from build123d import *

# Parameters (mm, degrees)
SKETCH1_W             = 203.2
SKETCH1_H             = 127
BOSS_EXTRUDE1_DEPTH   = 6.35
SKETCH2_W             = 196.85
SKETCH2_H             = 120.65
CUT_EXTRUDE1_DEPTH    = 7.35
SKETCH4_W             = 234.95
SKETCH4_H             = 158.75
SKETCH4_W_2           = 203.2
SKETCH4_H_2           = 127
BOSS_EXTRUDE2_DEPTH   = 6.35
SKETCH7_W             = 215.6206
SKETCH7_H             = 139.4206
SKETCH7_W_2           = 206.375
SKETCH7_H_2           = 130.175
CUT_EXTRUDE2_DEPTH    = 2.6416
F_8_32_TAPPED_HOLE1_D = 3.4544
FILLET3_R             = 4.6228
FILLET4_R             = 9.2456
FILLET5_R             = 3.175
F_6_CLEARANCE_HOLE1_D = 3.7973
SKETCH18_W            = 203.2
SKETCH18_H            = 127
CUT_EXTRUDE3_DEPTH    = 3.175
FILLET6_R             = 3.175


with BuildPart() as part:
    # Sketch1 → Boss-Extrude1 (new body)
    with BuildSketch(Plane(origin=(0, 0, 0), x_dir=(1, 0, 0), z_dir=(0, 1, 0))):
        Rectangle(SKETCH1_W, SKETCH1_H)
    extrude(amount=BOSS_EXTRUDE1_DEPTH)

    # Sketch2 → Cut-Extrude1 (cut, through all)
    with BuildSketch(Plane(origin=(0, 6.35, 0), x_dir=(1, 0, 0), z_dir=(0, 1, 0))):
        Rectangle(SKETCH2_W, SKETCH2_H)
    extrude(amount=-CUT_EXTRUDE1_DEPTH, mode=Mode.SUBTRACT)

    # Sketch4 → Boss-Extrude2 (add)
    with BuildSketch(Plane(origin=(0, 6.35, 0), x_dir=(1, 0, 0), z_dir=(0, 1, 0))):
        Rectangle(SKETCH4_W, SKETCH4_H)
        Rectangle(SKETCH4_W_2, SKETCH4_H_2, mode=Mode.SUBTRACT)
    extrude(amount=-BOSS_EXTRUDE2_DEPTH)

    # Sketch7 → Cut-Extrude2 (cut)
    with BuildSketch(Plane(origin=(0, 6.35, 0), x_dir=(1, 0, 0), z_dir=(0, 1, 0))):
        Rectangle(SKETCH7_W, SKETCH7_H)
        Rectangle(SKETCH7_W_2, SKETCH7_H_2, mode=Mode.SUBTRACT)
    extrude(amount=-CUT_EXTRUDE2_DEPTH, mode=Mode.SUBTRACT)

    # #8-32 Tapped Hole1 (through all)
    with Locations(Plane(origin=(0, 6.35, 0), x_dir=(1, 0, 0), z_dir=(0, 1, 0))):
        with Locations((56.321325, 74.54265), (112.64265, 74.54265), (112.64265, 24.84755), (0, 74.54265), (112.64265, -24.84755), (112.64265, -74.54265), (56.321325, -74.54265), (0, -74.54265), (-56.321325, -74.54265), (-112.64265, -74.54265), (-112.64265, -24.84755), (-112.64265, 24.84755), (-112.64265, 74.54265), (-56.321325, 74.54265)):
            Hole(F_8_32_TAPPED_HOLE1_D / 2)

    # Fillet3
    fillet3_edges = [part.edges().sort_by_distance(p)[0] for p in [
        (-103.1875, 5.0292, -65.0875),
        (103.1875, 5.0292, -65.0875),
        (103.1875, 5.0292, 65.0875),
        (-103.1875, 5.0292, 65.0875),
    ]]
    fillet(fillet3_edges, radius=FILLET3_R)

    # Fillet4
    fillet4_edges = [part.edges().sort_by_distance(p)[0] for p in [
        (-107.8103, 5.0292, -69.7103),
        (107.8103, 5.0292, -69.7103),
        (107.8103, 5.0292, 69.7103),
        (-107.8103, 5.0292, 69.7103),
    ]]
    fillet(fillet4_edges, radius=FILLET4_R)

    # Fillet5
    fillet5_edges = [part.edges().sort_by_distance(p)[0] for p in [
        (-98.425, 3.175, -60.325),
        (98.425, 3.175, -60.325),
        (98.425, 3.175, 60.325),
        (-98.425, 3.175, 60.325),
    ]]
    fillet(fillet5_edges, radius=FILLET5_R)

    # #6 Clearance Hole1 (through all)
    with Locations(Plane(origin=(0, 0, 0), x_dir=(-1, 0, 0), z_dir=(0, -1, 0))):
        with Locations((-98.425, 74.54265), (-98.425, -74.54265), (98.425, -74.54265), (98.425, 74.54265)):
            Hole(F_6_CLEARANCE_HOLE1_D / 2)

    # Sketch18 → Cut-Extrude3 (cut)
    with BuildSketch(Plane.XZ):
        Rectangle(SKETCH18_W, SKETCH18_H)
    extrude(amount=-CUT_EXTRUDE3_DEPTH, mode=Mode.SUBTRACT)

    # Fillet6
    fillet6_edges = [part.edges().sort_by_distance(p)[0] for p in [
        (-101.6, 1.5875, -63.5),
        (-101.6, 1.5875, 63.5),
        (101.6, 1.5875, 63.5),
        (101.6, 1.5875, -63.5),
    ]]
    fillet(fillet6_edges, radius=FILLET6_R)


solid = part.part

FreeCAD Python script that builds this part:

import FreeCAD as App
import Part
import Sketcher

V = App.Vector
Q = App.Units.Quantity


def edges_at(feature, points):
    """Names of the edges that pass closest to the given points."""
    edges = feature.Shape.Edges
    near = lambda p: min(range(len(edges)), key=lambda i: edges[i].distToShape(Part.Vertex(*p))[0])
    return sorted({f"Edge{near(p) + 1}" for p in points})

doc = App.newDocument("Part")
params = doc.addObject("Spreadsheet::Sheet", "Params")
for row, (alias, value) in enumerate([
    ("sketch1_width", "8 in"),
    ("sketch1_height", "5 in"),
    ("pad1_length", "0.25 in"),
    ("sketch2_width", "7.75 in"),
    ("sketch2_height", "4.75 in"),
    ("sketch3_width", "8 in"),
    ("sketch3_height", "5 in"),
    ("sketch3_width2", "9.25 in"),
    ("sketch3_height2", "6.25 in"),
    ("pad2_length", "0.25 in"),
    ("sketch4_width", "8.489 in"),
    ("sketch4_width2", "8.125 in"),
    ("sketch4_height", "5.489 in"),
    ("sketch4_height2", "5.125 in"),
    ("pocket2_length", "0.104 in"),
    ("sketch5_diameter", "0.136 in"),
    ("hole_diameter", "0.136 in"),
    ("fillet_radius", "0.182 in"),
    ("fillet2_radius", "0.364 in"),
    ("fillet3_radius", "0.125 in"),
    ("hole2_diameter", "0.1495 in"),
    ("sketch7_width", "8 in"),
    ("sketch7_height", "5 in"),
    ("pocket3_length", "0.125 in"),
    ("fillet4_radius", "0.125 in"),
], start=1):
    params.set(f"A{row}", alias)
    params.set(f"B{row}", "=" + value)
    params.setAlias(f"B{row}", alias)

body = doc.addObject("PartDesign::Body", "Body")

sketch1 = doc.addObject("Sketcher::SketchObject", "Sketch")
body.addObject(sketch1)
sketch1.AttachmentSupport = (doc.XZ_Plane, [""])
sketch1.MapMode = "FlatFace"
sketch1.addGeometry(Part.LineSegment(V(-102, -64, 0), V(-102, 64, 0)), False)
sketch1.addGeometry(Part.LineSegment(V(-102, 64, 0), V(102, 64, 0)), False)
sketch1.addGeometry(Part.LineSegment(V(102, 64, 0), V(102, -64, 0)), False)
sketch1.addGeometry(Part.LineSegment(V(102, -64, 0), V(-102, -64, 0)), False)
sketch1.addConstraint(Sketcher.Constraint("Coincident", 0, 2, 1, 1))
sketch1.addConstraint(Sketcher.Constraint("Coincident", 1, 2, 2, 1))
sketch1.addConstraint(Sketcher.Constraint("Coincident", 2, 2, 3, 1))
sketch1.addConstraint(Sketcher.Constraint("Coincident", 3, 2, 0, 1))
sketch1.addConstraint(Sketcher.Constraint("Vertical", 0))
sketch1.addConstraint(Sketcher.Constraint("Horizontal", 1))
sketch1.addConstraint(Sketcher.Constraint("Vertical", 2))
sketch1.addConstraint(Sketcher.Constraint("Horizontal", 3))
sketch1.addConstraint(Sketcher.Constraint("Symmetric", 0, 2, 2, 2, -1, 1))
sketch1.addConstraint(Sketcher.Constraint("DistanceX", 1, 1, 1, 2, Q("8 in")))
sketch1.addConstraint(Sketcher.Constraint("DistanceY", 0, 1, 0, 2, Q("5 in")))
sketch1.setExpression("Constraints[9]", "Params.sketch1_width")
sketch1.setExpression("Constraints[10]", "Params.sketch1_height")
pad1 = doc.addObject("PartDesign::Pad", "Pad")
body.addObject(pad1)
pad1.Profile = sketch1
pad1.setExpression("Length", "Params.pad1_length")
pad1.Reversed = True

sketch2 = doc.addObject("Sketcher::SketchObject", "Sketch001")
body.addObject(sketch2)
sketch2.AttachmentSupport = (doc.XZ_Plane, [""])
sketch2.MapMode = "FlatFace"
sketch2.AttachmentOffset = App.Placement(V(0, 0, -0.25 * 25.4), App.Rotation())
sketch2.addGeometry(Part.LineSegment(V(-98, -60, 0), V(-98, 60, 0)), False)
sketch2.addGeometry(Part.LineSegment(V(-98, 60, 0), V(98, 60, 0)), False)
sketch2.addGeometry(Part.LineSegment(V(98, 60, 0), V(98, -60, 0)), False)
sketch2.addGeometry(Part.LineSegment(V(98, -60, 0), V(-98, -60, 0)), False)
sketch2.addConstraint(Sketcher.Constraint("Coincident", 0, 2, 1, 1))
sketch2.addConstraint(Sketcher.Constraint("Coincident", 1, 2, 2, 1))
sketch2.addConstraint(Sketcher.Constraint("Coincident", 2, 2, 3, 1))
sketch2.addConstraint(Sketcher.Constraint("Coincident", 3, 2, 0, 1))
sketch2.addConstraint(Sketcher.Constraint("Vertical", 0))
sketch2.addConstraint(Sketcher.Constraint("Horizontal", 1))
sketch2.addConstraint(Sketcher.Constraint("Vertical", 2))
sketch2.addConstraint(Sketcher.Constraint("Horizontal", 3))
sketch2.addConstraint(Sketcher.Constraint("Symmetric", 0, 2, 2, 2, -1, 1))
sketch2.addConstraint(Sketcher.Constraint("DistanceX", 1, 1, 1, 2, Q("7.75 in")))
sketch2.addConstraint(Sketcher.Constraint("DistanceY", 0, 1, 0, 2, Q("4.75 in")))
sketch2.setExpression("Constraints[9]", "Params.sketch2_width")
sketch2.setExpression("Constraints[10]", "Params.sketch2_height")
pocket1 = doc.addObject("PartDesign::Pocket", "Pocket")
body.addObject(pocket1)
pocket1.Profile = sketch2
pocket1.Type = "ThroughAll"
pocket1.Reversed = True

sketch3 = doc.addObject("Sketcher::SketchObject", "Sketch002")
body.addObject(sketch3)
sketch3.AttachmentSupport = (doc.XZ_Plane, [""])
sketch3.MapMode = "FlatFace"
sketch3.AttachmentOffset = App.Placement(V(0, 0, -0.25 * 25.4), App.Rotation())
sketch3.addGeometry(Part.LineSegment(V(-117, -79, 0), V(-117, 79, 0)), False)
sketch3.addGeometry(Part.LineSegment(V(-117, 79, 0), V(117, 79, 0)), False)
sketch3.addGeometry(Part.LineSegment(V(117, 79, 0), V(117, -79, 0)), False)
sketch3.addGeometry(Part.LineSegment(V(117, -79, 0), V(-117, -79, 0)), False)
sketch3.addGeometry(Part.LineSegment(V(102, 64, 0), V(-102, 64, 0)), False)
sketch3.addGeometry(Part.LineSegment(V(-102, 64, 0), V(-102, -64, 0)), False)
sketch3.addGeometry(Part.LineSegment(V(-102, -64, 0), V(102, -64, 0)), False)
sketch3.addGeometry(Part.LineSegment(V(102, -64, 0), V(102, 64, 0)), False)
sketch3.addConstraint(Sketcher.Constraint("Coincident", 0, 2, 1, 1))
sketch3.addConstraint(Sketcher.Constraint("Coincident", 1, 2, 2, 1))
sketch3.addConstraint(Sketcher.Constraint("Coincident", 2, 2, 3, 1))
sketch3.addConstraint(Sketcher.Constraint("Coincident", 3, 2, 0, 1))
sketch3.addConstraint(Sketcher.Constraint("Coincident", 4, 2, 5, 1))
sketch3.addConstraint(Sketcher.Constraint("Coincident", 5, 2, 6, 1))
sketch3.addConstraint(Sketcher.Constraint("Coincident", 6, 2, 7, 1))
sketch3.addConstraint(Sketcher.Constraint("Coincident", 7, 2, 4, 1))
sketch3.addConstraint(Sketcher.Constraint("Vertical", 0))
sketch3.addConstraint(Sketcher.Constraint("Horizontal", 1))
sketch3.addConstraint(Sketcher.Constraint("Vertical", 2))
sketch3.addConstraint(Sketcher.Constraint("Horizontal", 3))
sketch3.addConstraint(Sketcher.Constraint("Horizontal", 4))
sketch3.addConstraint(Sketcher.Constraint("Vertical", 5))
sketch3.addConstraint(Sketcher.Constraint("Horizontal", 6))
sketch3.addConstraint(Sketcher.Constraint("Vertical", 7))
sketch3.addConstraint(Sketcher.Constraint("Symmetric", 0, 2, 2, 2, -1, 1))
sketch3.addConstraint(Sketcher.Constraint("Symmetric", 4, 2, 6, 2, -1, 1))
sketch3.addConstraint(Sketcher.Constraint("DistanceX", 4, 2, 4, 1, Q("8 in")))
sketch3.addConstraint(Sketcher.Constraint("DistanceY", 5, 2, 5, 1, Q("5 in")))
sketch3.addConstraint(Sketcher.Constraint("DistanceX", 1, 1, 1, 2, Q("9.25 in")))
sketch3.addConstraint(Sketcher.Constraint("DistanceY", 0, 1, 0, 2, Q("6.25 in")))
sketch3.setExpression("Constraints[18]", "Params.sketch3_width")
sketch3.setExpression("Constraints[19]", "Params.sketch3_height")
sketch3.setExpression("Constraints[20]", "Params.sketch3_width2")
sketch3.setExpression("Constraints[21]", "Params.sketch3_height2")
pad2 = doc.addObject("PartDesign::Pad", "Pad001")
body.addObject(pad2)
pad2.Profile = sketch3
pad2.setExpression("Length", "Params.pad2_length")

sketch4 = doc.addObject("Sketcher::SketchObject", "Sketch003")
body.addObject(sketch4)
sketch4.AttachmentSupport = (doc.XZ_Plane, [""])
sketch4.MapMode = "FlatFace"
sketch4.AttachmentOffset = App.Placement(V(0, 0, -0.25 * 25.4), App.Rotation())
sketch4.addGeometry(Part.LineSegment(V(-108, -70, 0), V(-108, 70, 0)), False)
sketch4.addGeometry(Part.LineSegment(V(-108, 70, 0), V(108, 70, 0)), False)
sketch4.addGeometry(Part.LineSegment(V(108, 70, 0), V(108, -70, 0)), False)
sketch4.addGeometry(Part.LineSegment(V(108, -70, 0), V(-108, -70, 0)), False)
sketch4.addGeometry(Part.LineSegment(V(103, 65, 0), V(-103, 65, 0)), False)
sketch4.addGeometry(Part.LineSegment(V(-103, 65, 0), V(-103, -65, 0)), False)
sketch4.addGeometry(Part.LineSegment(V(-103, -65, 0), V(103, -65, 0)), False)
sketch4.addGeometry(Part.LineSegment(V(103, -65, 0), V(103, 65, 0)), False)
sketch4.addConstraint(Sketcher.Constraint("Coincident", 0, 2, 1, 1))
sketch4.addConstraint(Sketcher.Constraint("Coincident", 1, 2, 2, 1))
sketch4.addConstraint(Sketcher.Constraint("Coincident", 2, 2, 3, 1))
sketch4.addConstraint(Sketcher.Constraint("Coincident", 3, 2, 0, 1))
sketch4.addConstraint(Sketcher.Constraint("Coincident", 4, 2, 5, 1))
sketch4.addConstraint(Sketcher.Constraint("Coincident", 5, 2, 6, 1))
sketch4.addConstraint(Sketcher.Constraint("Coincident", 6, 2, 7, 1))
sketch4.addConstraint(Sketcher.Constraint("Coincident", 7, 2, 4, 1))
sketch4.addConstraint(Sketcher.Constraint("Vertical", 0))
sketch4.addConstraint(Sketcher.Constraint("Horizontal", 1))
sketch4.addConstraint(Sketcher.Constraint("Vertical", 2))
sketch4.addConstraint(Sketcher.Constraint("Horizontal", 3))
sketch4.addConstraint(Sketcher.Constraint("Horizontal", 4))
sketch4.addConstraint(Sketcher.Constraint("Vertical", 5))
sketch4.addConstraint(Sketcher.Constraint("Horizontal", 6))
sketch4.addConstraint(Sketcher.Constraint("Vertical", 7))
sketch4.addConstraint(Sketcher.Constraint("Symmetric", 0, 2, 2, 2, -1, 1))
sketch4.addConstraint(Sketcher.Constraint("Symmetric", 4, 2, 6, 2, -1, 1))
sketch4.addConstraint(Sketcher.Constraint("DistanceX", 1, 1, 1, 2, Q("8.489 in")))
sketch4.addConstraint(Sketcher.Constraint("DistanceX", 4, 2, 4, 1, Q("8.125 in")))
sketch4.addConstraint(Sketcher.Constraint("DistanceY", 0, 1, 0, 2, Q("5.489 in")))
sketch4.addConstraint(Sketcher.Constraint("DistanceY", 5, 2, 5, 1, Q("5.125 in")))
sketch4.setExpression("Constraints[18]", "Params.sketch4_width")
sketch4.setExpression("Constraints[19]", "Params.sketch4_width2")
sketch4.setExpression("Constraints[20]", "Params.sketch4_height")
sketch4.setExpression("Constraints[21]", "Params.sketch4_height2")
pocket2 = doc.addObject("PartDesign::Pocket", "Pocket001")
body.addObject(pocket2)
pocket2.Profile = sketch4
pocket2.setExpression("Length", "Params.pocket2_length")
pocket2.Reversed = True

sketch5 = doc.addObject("Sketcher::SketchObject", "Sketch004")
body.addObject(sketch5)
sketch5.AttachmentSupport = (doc.XZ_Plane, [""])
sketch5.MapMode = "FlatFace"
sketch5.AttachmentOffset = App.Placement(V(0, 0, -0.25 * 25.4), App.Rotation())
sketch5.addGeometry(Part.Circle(V(56.3, -74.5, 0), V(0, 0, 1), 1.7), False)
sketch5.addGeometry(Part.Circle(V(112.6, -74.5, 0), V(0, 0, 1), 1.7), False)
sketch5.addGeometry(Part.Circle(V(112.6, -24.8, 0), V(0, 0, 1), 1.7), False)
sketch5.addGeometry(Part.Circle(V(0, -74.5, 0), V(0, 0, 1), 1.7), False)
sketch5.addGeometry(Part.Circle(V(112.6, 24.8, 0), V(0, 0, 1), 1.7), False)
sketch5.addGeometry(Part.Circle(V(112.6, 74.5, 0), V(0, 0, 1), 1.7), False)
sketch5.addGeometry(Part.Circle(V(56.3, 74.5, 0), V(0, 0, 1), 1.7), False)
sketch5.addGeometry(Part.Circle(V(0, 74.5, 0), V(0, 0, 1), 1.7), False)
sketch5.addGeometry(Part.Circle(V(-56.3, 74.5, 0), V(0, 0, 1), 1.7), False)
sketch5.addGeometry(Part.Circle(V(-112.6, 74.5, 0), V(0, 0, 1), 1.7), False)
sketch5.addGeometry(Part.Circle(V(-112.6, 24.8, 0), V(0, 0, 1), 1.7), False)
sketch5.addGeometry(Part.Circle(V(-112.6, -24.8, 0), V(0, 0, 1), 1.7), False)
sketch5.addGeometry(Part.Circle(V(-112.6, -74.5, 0), V(0, 0, 1), 1.7), False)
sketch5.addGeometry(Part.Circle(V(-56.3, -74.5, 0), V(0, 0, 1), 1.7), False)
sketch5.addConstraint(Sketcher.Constraint("Equal", 0, 1))
sketch5.addConstraint(Sketcher.Constraint("Equal", 1, 2))
sketch5.addConstraint(Sketcher.Constraint("Equal", 2, 3))
sketch5.addConstraint(Sketcher.Constraint("Equal", 3, 4))
sketch5.addConstraint(Sketcher.Constraint("Equal", 4, 5))
sketch5.addConstraint(Sketcher.Constraint("Equal", 5, 6))
sketch5.addConstraint(Sketcher.Constraint("Equal", 6, 7))
sketch5.addConstraint(Sketcher.Constraint("Equal", 7, 8))
sketch5.addConstraint(Sketcher.Constraint("Equal", 8, 9))
sketch5.addConstraint(Sketcher.Constraint("Equal", 9, 10))
sketch5.addConstraint(Sketcher.Constraint("Equal", 10, 11))
sketch5.addConstraint(Sketcher.Constraint("Equal", 11, 12))
sketch5.addConstraint(Sketcher.Constraint("Equal", 12, 13))
sketch5.addConstraint(Sketcher.Constraint("Symmetric", 3, 3, 7, 3, -1, 1))
sketch5.addConstraint(Sketcher.Constraint("Symmetric", 0, 3, 8, 3, -1, 1))
sketch5.addConstraint(Sketcher.Constraint("Symmetric", 1, 3, 9, 3, -1, 1))
sketch5.addConstraint(Sketcher.Constraint("Symmetric", 2, 3, 10, 3, -1, 1))
sketch5.addConstraint(Sketcher.Constraint("Symmetric", 4, 3, 11, 3, -1, 1))
sketch5.addConstraint(Sketcher.Constraint("Symmetric", 5, 3, 12, 3, -1, 1))
sketch5.addConstraint(Sketcher.Constraint("Symmetric", 6, 3, 13, 3, -1, 1))
sketch5.addConstraint(Sketcher.Constraint("Symmetric", 6, 3, 8, 3, -2))
sketch5.addConstraint(Sketcher.Constraint("Symmetric", 5, 3, 9, 3, -2))
sketch5.addConstraint(Sketcher.Constraint("Symmetric", 4, 3, 10, 3, -2))
sketch5.addConstraint(Sketcher.Constraint("PointOnObject", 3, 3, -2))
sketch5.addConstraint(Sketcher.Constraint("Horizontal", 0, 3, 1, 3))
sketch5.addConstraint(Sketcher.Constraint("Horizontal", 1, 3, 3, 3))
sketch5.addConstraint(Sketcher.Constraint("Vertical", 1, 3, 2, 3))
sketch5.addConstraint(Sketcher.Constraint("Diameter", 0, Q("0.136 in")))
sketch5.addConstraint(Sketcher.Constraint("DistanceY", 1, 3, 4, 3, Q("3.913 in")))
sketch5.addConstraint(Sketcher.Constraint("DistanceY", 1, 3, 2, 3, Q("1.9565 in")))
sketch5.addConstraint(Sketcher.Constraint("DistanceX", 9, 3, 5, 3, Q("8.8695 in")))
sketch5.addConstraint(Sketcher.Constraint("DistanceX", 8, 3, 6, 3, Q("112.64265 mm")))
sketch5.setExpression("Constraints[27]", "Params.sketch5_diameter")
doc.recompute()
hole = doc.addObject("PartDesign::Hole", "Hole")
body.addObject(hole)
hole.Profile = sketch5
hole.ThreadType = "None"
hole.setExpression("Diameter", "Params.hole_diameter")
hole.DepthType = "ThroughAll"
hole.Reversed = True
doc.recompute()

fillet = doc.addObject("PartDesign::Fillet", "Fillet")
body.addObject(fillet)
fillet.Base = (hole, edges_at(hole, [
    (-103.188, 5.029, -65.088),
    (103.188, 5.029, -65.088),
    (103.188, 5.029, 65.088),
    (-103.188, 5.029, 65.088),
]))
fillet.setExpression("Radius", "Params.fillet_radius")
doc.recompute()

fillet2 = doc.addObject("PartDesign::Fillet", "Fillet001")
body.addObject(fillet2)
fillet2.Base = (fillet, edges_at(fillet, [
    (-107.81, 5.029, -69.71),
    (107.81, 5.029, -69.71),
    (107.81, 5.029, 69.71),
    (-107.81, 5.029, 69.71),
]))
fillet2.setExpression("Radius", "Params.fillet2_radius")
doc.recompute()

fillet3 = doc.addObject("PartDesign::Fillet", "Fillet002")
body.addObject(fillet3)
fillet3.Base = (fillet2, edges_at(fillet2, [
    (-98.425, 3.175, -60.325),
    (98.425, 3.175, -60.325),
    (98.425, 3.175, 60.325),
    (-98.425, 3.175, 60.325),
]))
fillet3.setExpression("Radius", "Params.fillet3_radius")

sketch6 = doc.addObject("Sketcher::SketchObject", "Sketch005")
body.addObject(sketch6)
sketch6.AttachmentSupport = (doc.XZ_Plane, [""])
sketch6.MapMode = "FlatFace"
sketch6.addGeometry(Part.Circle(V(98.4, -74.5, 0), V(0, 0, 1), 1.9), False)
sketch6.addGeometry(Part.Circle(V(98.4, 74.5, 0), V(0, 0, 1), 1.9), False)
sketch6.addGeometry(Part.Circle(V(-98.4, 74.5, 0), V(0, 0, 1), 1.9), False)
sketch6.addGeometry(Part.Circle(V(-98.4, -74.5, 0), V(0, 0, 1), 1.9), False)
sketch6.addConstraint(Sketcher.Constraint("Equal", 0, 1))
sketch6.addConstraint(Sketcher.Constraint("Equal", 1, 2))
sketch6.addConstraint(Sketcher.Constraint("Equal", 2, 3))
sketch6.addConstraint(Sketcher.Constraint("Symmetric", 0, 3, 2, 3, -1, 1))
sketch6.addConstraint(Sketcher.Constraint("Symmetric", 1, 3, 3, 3, -1, 1))
sketch6.addConstraint(Sketcher.Constraint("Symmetric", 1, 3, 2, 3, -2))
sketch6.addConstraint(Sketcher.Constraint("Diameter", 0, Q("0.1495 in")))
sketch6.addConstraint(Sketcher.Constraint("DistanceX", 2, 3, 1, 3, Q("7.75 in")))
sketch6.addConstraint(Sketcher.Constraint("DistanceY", 0, 3, 1, 3, Q("5.8695 in")))
doc.recompute()
hole2 = doc.addObject("PartDesign::Hole", "Hole001")
body.addObject(hole2)
hole2.Profile = sketch6
hole2.ThreadType = "None"
hole2.setExpression("Diameter", "Params.hole2_diameter")
hole2.DepthType = "ThroughAll"

sketch7 = doc.addObject("Sketcher::SketchObject", "Sketch006")
body.addObject(sketch7)
sketch7.AttachmentSupport = (doc.XZ_Plane, [""])
sketch7.MapMode = "FlatFace"
sketch7.addGeometry(Part.LineSegment(V(-102, 64, 0), V(-102, -64, 0)), False)
sketch7.addGeometry(Part.LineSegment(V(-102, -64, 0), V(102, -64, 0)), False)
sketch7.addGeometry(Part.LineSegment(V(102, -64, 0), V(102, 64, 0)), False)
sketch7.addGeometry(Part.LineSegment(V(102, 64, 0), V(-102, 64, 0)), False)
sketch7.addConstraint(Sketcher.Constraint("Coincident", 0, 2, 1, 1))
sketch7.addConstraint(Sketcher.Constraint("Coincident", 1, 2, 2, 1))
sketch7.addConstraint(Sketcher.Constraint("Coincident", 2, 2, 3, 1))
sketch7.addConstraint(Sketcher.Constraint("Coincident", 3, 2, 0, 1))
sketch7.addConstraint(Sketcher.Constraint("Vertical", 0))
sketch7.addConstraint(Sketcher.Constraint("Horizontal", 1))
sketch7.addConstraint(Sketcher.Constraint("Vertical", 2))
sketch7.addConstraint(Sketcher.Constraint("Horizontal", 3))
sketch7.addConstraint(Sketcher.Constraint("Symmetric", 0, 2, 2, 2, -1, 1))
sketch7.addConstraint(Sketcher.Constraint("DistanceX", 1, 1, 1, 2, Q("8 in")))
sketch7.addConstraint(Sketcher.Constraint("DistanceY", 0, 2, 0, 1, Q("5 in")))
sketch7.setExpression("Constraints[9]", "Params.sketch7_width")
sketch7.setExpression("Constraints[10]", "Params.sketch7_height")
pocket3 = doc.addObject("PartDesign::Pocket", "Pocket002")
body.addObject(pocket3)
pocket3.Profile = sketch7
pocket3.setExpression("Length", "Params.pocket3_length")
doc.recompute()

fillet4 = doc.addObject("PartDesign::Fillet", "Fillet003")
body.addObject(fillet4)
fillet4.Base = (pocket3, edges_at(pocket3, [
    (-101.6, 1.587, -63.5),
    (-101.6, 1.587, 63.5),
    (101.6, 1.587, 63.5),
    (101.6, 1.587, -63.5),
]))
fillet4.setExpression("Radius", "Params.fillet4_radius")

doc.recompute()
